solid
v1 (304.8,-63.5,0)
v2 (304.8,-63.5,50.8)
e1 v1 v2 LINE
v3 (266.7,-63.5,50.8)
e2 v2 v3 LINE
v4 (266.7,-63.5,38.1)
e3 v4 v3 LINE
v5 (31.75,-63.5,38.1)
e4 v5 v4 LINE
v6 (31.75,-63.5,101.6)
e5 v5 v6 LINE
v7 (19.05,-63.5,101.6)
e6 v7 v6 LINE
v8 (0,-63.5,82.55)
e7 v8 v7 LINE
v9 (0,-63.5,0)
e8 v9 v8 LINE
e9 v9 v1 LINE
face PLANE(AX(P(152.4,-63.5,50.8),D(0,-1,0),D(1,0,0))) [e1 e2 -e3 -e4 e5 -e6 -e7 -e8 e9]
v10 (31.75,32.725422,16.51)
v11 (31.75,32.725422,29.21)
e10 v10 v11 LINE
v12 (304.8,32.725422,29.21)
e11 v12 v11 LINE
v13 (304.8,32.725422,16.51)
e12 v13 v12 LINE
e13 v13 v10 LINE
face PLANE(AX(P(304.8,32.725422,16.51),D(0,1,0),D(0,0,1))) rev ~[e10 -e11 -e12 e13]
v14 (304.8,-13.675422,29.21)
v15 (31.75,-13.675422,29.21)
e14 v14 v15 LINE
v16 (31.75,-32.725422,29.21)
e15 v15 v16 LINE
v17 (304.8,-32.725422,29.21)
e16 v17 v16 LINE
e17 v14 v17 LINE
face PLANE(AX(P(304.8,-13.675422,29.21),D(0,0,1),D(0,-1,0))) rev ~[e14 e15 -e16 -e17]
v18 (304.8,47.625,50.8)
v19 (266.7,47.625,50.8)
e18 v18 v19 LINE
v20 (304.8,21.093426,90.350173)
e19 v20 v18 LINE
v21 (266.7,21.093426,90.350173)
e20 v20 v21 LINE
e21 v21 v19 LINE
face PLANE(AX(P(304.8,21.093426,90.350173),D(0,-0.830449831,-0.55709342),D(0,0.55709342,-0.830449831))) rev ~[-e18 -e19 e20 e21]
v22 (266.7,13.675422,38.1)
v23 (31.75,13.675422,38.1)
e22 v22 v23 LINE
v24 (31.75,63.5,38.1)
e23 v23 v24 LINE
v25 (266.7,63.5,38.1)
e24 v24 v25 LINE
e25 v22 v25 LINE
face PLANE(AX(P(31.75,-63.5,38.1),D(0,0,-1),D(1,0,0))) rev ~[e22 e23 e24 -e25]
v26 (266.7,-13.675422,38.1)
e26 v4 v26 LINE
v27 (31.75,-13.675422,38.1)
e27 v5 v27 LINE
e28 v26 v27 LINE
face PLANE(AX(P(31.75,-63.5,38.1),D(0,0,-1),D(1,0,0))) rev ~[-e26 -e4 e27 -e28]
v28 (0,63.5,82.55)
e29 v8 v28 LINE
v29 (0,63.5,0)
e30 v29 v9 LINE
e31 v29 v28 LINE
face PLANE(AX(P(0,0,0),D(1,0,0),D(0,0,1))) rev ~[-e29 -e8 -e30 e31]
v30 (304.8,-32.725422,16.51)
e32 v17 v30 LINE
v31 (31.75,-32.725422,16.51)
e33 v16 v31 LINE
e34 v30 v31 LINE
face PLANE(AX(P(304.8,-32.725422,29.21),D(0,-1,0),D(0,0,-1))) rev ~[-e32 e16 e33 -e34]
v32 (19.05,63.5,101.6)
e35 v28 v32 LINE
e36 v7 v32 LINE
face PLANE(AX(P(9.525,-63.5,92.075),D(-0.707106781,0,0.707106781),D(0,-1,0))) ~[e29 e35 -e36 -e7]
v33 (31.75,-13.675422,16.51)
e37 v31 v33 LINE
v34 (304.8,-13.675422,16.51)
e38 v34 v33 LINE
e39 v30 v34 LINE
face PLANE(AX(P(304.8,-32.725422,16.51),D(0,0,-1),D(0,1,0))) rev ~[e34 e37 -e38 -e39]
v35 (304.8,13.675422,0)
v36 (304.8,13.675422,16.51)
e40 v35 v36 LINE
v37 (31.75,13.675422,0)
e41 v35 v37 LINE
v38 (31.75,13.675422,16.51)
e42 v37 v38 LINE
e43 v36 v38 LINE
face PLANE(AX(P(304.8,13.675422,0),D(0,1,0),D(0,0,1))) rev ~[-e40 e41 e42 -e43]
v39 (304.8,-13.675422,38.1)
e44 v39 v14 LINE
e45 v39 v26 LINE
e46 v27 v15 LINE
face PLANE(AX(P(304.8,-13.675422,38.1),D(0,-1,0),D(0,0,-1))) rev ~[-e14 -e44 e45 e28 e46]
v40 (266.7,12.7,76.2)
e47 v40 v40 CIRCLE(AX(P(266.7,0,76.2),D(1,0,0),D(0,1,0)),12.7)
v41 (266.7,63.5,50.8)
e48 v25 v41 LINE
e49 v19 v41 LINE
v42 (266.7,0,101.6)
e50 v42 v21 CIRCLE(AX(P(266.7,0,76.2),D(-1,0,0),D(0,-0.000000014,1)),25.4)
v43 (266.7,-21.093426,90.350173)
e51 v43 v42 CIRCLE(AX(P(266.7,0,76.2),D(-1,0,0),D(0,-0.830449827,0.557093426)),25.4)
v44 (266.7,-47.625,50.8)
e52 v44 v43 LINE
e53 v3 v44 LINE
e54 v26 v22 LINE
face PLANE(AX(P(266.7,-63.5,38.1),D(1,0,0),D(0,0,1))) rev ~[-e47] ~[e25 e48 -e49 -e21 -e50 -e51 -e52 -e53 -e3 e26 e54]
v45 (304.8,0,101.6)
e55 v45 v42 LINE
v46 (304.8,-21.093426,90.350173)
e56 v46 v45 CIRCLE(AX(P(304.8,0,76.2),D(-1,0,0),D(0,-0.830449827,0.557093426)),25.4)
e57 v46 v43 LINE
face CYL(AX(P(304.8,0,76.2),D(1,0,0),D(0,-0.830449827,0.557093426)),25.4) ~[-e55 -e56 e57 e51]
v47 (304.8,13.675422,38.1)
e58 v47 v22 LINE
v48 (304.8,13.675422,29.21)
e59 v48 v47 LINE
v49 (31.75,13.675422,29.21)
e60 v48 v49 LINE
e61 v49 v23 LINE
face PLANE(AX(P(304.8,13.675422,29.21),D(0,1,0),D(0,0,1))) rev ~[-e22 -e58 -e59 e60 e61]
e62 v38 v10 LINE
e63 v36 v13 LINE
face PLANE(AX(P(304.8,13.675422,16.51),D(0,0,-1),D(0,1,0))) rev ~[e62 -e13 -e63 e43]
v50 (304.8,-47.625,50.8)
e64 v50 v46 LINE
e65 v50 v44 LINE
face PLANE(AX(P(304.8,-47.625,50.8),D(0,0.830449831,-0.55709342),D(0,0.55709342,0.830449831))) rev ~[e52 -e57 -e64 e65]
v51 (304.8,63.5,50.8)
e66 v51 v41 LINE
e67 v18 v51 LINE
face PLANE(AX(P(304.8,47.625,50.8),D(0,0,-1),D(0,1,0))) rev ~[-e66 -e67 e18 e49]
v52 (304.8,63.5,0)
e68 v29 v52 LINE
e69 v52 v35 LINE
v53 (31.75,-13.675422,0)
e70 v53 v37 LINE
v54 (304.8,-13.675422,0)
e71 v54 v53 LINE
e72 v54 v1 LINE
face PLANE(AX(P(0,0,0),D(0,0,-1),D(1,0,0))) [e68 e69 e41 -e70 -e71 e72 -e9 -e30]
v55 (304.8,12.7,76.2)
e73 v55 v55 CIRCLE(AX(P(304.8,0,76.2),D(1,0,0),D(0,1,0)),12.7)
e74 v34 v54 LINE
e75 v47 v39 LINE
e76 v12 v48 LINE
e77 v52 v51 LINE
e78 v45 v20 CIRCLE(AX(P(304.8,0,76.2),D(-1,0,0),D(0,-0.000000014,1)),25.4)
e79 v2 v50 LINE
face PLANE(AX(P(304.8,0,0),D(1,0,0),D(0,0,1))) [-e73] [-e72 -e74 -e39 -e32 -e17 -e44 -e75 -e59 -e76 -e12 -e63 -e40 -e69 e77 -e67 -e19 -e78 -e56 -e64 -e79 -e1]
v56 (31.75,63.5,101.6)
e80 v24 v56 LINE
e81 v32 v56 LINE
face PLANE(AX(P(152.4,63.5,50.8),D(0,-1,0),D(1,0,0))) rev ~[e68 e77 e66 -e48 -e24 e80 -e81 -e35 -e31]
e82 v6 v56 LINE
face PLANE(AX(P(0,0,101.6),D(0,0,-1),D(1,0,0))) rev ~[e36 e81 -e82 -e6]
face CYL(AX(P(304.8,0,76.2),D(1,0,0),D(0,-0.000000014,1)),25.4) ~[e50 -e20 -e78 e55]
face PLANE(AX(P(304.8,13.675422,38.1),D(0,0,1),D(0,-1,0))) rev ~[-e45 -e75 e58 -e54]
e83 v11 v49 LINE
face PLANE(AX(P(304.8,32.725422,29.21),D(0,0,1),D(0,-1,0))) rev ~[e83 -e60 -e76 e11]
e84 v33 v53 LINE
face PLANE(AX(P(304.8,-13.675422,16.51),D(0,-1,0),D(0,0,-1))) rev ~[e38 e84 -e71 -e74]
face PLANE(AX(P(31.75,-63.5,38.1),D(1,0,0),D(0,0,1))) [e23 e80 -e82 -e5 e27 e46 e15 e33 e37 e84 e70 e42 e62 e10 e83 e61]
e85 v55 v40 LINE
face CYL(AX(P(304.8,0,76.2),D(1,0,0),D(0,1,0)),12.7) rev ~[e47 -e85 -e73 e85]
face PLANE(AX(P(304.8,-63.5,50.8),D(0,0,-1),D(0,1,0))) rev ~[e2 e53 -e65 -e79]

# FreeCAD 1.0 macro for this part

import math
import FreeCAD as App
import Part
import Sketcher
Q = App.Units.Quantity


def edges_at(feature, points):
    """Names of the edges that pass closest to the given points."""
    edges = feature.Shape.Edges
    near = lambda p: min(range(len(edges)), key=lambda i: edges[i].distToShape(Part.Vertex(*p))[0])
    return sorted({f"Edge{near(p) + 1}" for p in points})


def add_polygon(sketch, points):
    """Adds a closed chain of lines whose ends are joined by coincident constraints."""
    first, n = sketch.GeometryCount, len(points)
    for a, b in zip(points, points[1:] + points[:1]):
        sketch.addGeometry(Part.LineSegment(App.Vector(*a, 0), App.Vector(*b, 0)), False)
    for i in range(n):
        sketch.addConstraint(Sketcher.Constraint("Coincident", first + i, 2, first + (i + 1) % n, 1))

doc = App.newDocument("Part")
body = doc.addObject("PartDesign::Body", "Body")

sketch1 = body.newObject("Sketcher::SketchObject", "Sketch")
sketch1.AttachmentSupport = (doc.getObject("XZ_Plane"), [""])
sketch1.MapMode = "FlatFace"
add_polygon(sketch1, [(0, 102), (0, 0), (305, 0), (305, 102)])
sketch1.addConstraint([
    Sketcher.Constraint("Vertical", 0),
    Sketcher.Constraint("Horizontal", 1),
    Sketcher.Constraint("Vertical", 2),
    Sketcher.Constraint("Horizontal", 3),
    Sketcher.Constraint("Coincident", 0, 2, -1, 1),
    Sketcher.Constraint("DistanceX", 1, 1, 1, 2, Q("12 in")),
    Sketcher.Constraint("DistanceY", 0, 2, 0, 1, Q("4 in")),
])
pad1 = body.newObject("PartDesign::Pad", "Pad")
pad1.Profile = sketch1
pad1.Length = Q("5 in")
pad1.Midplane = True

sketch2 = body.newObject("Sketcher::SketchObject", "Sketch001")
sketch2.AttachmentSupport = (doc.getObject("XZ_Plane"), [""])
sketch2.MapMode = "FlatFace"
sketch2.AttachmentOffset = App.Placement(App.Vector(0, 0, 2.5 * 25.4), App.Rotation())
add_polygon(sketch2, [(32, 102), (32, 38), (267, 38), (267, 102)])
sketch2.addConstraint([
    Sketcher.Constraint("Vertical", 0),
    Sketcher.Constraint("Horizontal", 1),
    Sketcher.Constraint("Vertical", 2),
    Sketcher.Constraint("Horizontal", 3),
    Sketcher.Constraint("DistanceY", 0, 2, 0, 1, Q("2.5 in")),
    Sketcher.Constraint("DistanceY", -1, 1, 2, 2, Q("4 in")),
    Sketcher.Constraint("DistanceX", 1, 1, 1, 2, Q("9.25 in")),
    Sketcher.Constraint("DistanceX", -1, 1, 1, 2, Q("10.5 in")),
])
pocket1 = body.newObject("PartDesign::Pocket", "Pocket")
pocket1.Profile = sketch2
pocket1.Type = "ThroughAll"
doc.recompute()

chamfer = body.newObject("PartDesign::Chamfer", "Chamfer")
chamfer.Base = (pocket1, edges_at(pocket1, [(0, 0, 101.6)]))
chamfer.ChamferType = "Two distances"
chamfer.Size = Q("0.75 in")
chamfer.Size2 = Q("0.75 in")

sketch3 = body.newObject("Sketcher::SketchObject", "Sketch002")
sketch3.AttachmentSupport = (doc.getObject("YZ_Plane"), [""])
sketch3.MapMode = "FlatFace"
sketch3.AttachmentOffset = App.Placement(App.Vector(0, 0, 12 * 25.4), App.Rotation())
sketch3.addGeometry([
    Part.LineSegment(App.Vector(-64, 102, 0), App.Vector(-64, 51, 0)),
    Part.LineSegment(App.Vector(-64, 51, 0), App.Vector(-48, 51, 0)),
    Part.LineSegment(App.Vector(-48, 51, 0), App.Vector(-21, 90, 0)),
    Part.ArcOfCircle(Part.Circle(App.Vector(0, 76, 0), App.Vector(0, 0, 1), 25), math.radians(90), math.radians(146)),
    Part.LineSegment(App.Vector(0, 102, 0), App.Vector(-64, 102, 0)),
    Part.LineSegment(App.Vector(64, 102, 0), App.Vector(0, 102, 0)),
    Part.ArcOfCircle(Part.Circle(App.Vector(0, 76, 0), App.Vector(0, 0, 1), 25), math.radians(34), math.radians(90)),
    Part.LineSegment(App.Vector(21, 90, 0), App.Vector(48, 51, 0)),
    Part.LineSegment(App.Vector(48, 51, 0), App.Vector(64, 51, 0)),
    Part.LineSegment(App.Vector(64, 51, 0), App.Vector(64, 102, 0)),
    Part.Circle(App.Vector(0, 76, 0), App.Vector(0, 0, 1), 13),
], False)
sketch3.addConstraint([
    Sketcher.Constraint("Coincident", 0, 2, 1, 1),
    Sketcher.Constraint("Coincident", 1, 2, 2, 1),
    Sketcher.Constraint("Tangent", 2, 2, 3, 2),
    Sketcher.Constraint("Tangent", 3, 1, 4, 1),
    Sketcher.Constraint("Coincident", 4, 2, 0, 1),
    Sketcher.Constraint("Tangent", 5, 2, 6, 2),
    Sketcher.Constraint("Tangent", 6, 1, 7, 1),
    Sketcher.Constraint("Coincident", 7, 2, 8, 1),
    Sketcher.Constraint("Coincident", 8, 2, 9, 1),
    Sketcher.Constraint("Coincident", 9, 2, 5, 1),
    Sketcher.Constraint("Vertical", 0),
    Sketcher.Constraint("Horizontal", 1),
    Sketcher.Constraint("Horizontal", 4),
    Sketcher.Constraint("Horizontal", 5),
    Sketcher.Constraint("Horizontal", 8),
    Sketcher.Constraint("Vertical", 9),
    Sketcher.Constraint("Coincident", 6, 3, 3, 3),
    Sketcher.Constraint("Coincident", 10, 3, 3, 3),
    Sketcher.Constraint("Equal", 3, 6),
    Sketcher.Constraint("Symmetric", 2, 2, 6, 1, -2),
    Sketcher.Constraint("Symmetric", 0, 2, 8, 2, -2),
    Sketcher.Constraint("Diameter", 10, Q("1 in")),
    Sketcher.Constraint("Radius", 3, Q("1 in")),
    Sketcher.Constraint("DistanceY", 0, 2, 0, 1, Q("2 in")),
    Sketcher.Constraint("DistanceX", 4, 2, 4, 1, Q("2.5 in")),
    Sketcher.Constraint("DistanceY", -1, 1, 3, 3, Q("3 in")),
    Sketcher.Constraint("DistanceX", 1, 1, 1, 2, Q("0.625 in")),
])
pocket2 = body.newObject("PartDesign::Pocket", "Pocket001")
pocket2.Profile = sketch3
pocket2.Length = Q("1.5 in")

sketch4 = body.newObject("Sketcher::SketchObject", "Sketch003")
sketch4.AttachmentSupport = (doc.getObject("YZ_Plane"), [""])
sketch4.MapMode = "FlatFace"
sketch4.AttachmentOffset = App.Placement(App.Vector(0, 0, 12 * 25.4), App.Rotation())
add_polygon(sketch4, [(-14, 0), (14, 0), (14, 17), (33, 17), (33, 29), (14, 29), (14, 38), (-14, 38), (-14, 29), (-33, 29), (-33, 17), (-14, 17)])
sketch4.addConstraint([
    Sketcher.Constraint("Horizontal", 0),
    Sketcher.Constraint("Vertical", 1),
    Sketcher.Constraint("Horizontal", 2),
    Sketcher.Constraint("Vertical", 3),
    Sketcher.Constraint("Horizontal", 4),
    Sketcher.Constraint("Vertical", 5),
    Sketcher.Constraint("Horizontal", 6),
    Sketcher.Constraint("Vertical", 7),
    Sketcher.Constraint("Horizontal", 8),
    Sketcher.Constraint("Vertical", 9),
    Sketcher.Constraint("Horizontal", 10),
    Sketcher.Constraint("Vertical", 11),
    Sketcher.Constraint("Symmetric", 0, 2, 11, 2, -1, 1),
    Sketcher.Constraint("Symmetric", 4, 2, 7, 2, -2),
    Sketcher.Constraint("Symmetric", 2, 2, 9, 2, -2),
    Sketcher.Constraint("Vertical", 1, 2, 4, 2),
    Sketcher.Constraint("DistanceY", 3, 1, 3, 2, Q("0.5 in")),
    Sketcher.Constraint("DistanceX", 2, 1, 2, 2, Q("0.75 in")),
    Sketcher.Constraint("DistanceY", 1, 1, 1, 2, Q("0.65 in")),
    Sketcher.Constraint("DistanceY", 5, 1, 5, 2, Q("0.35 in")),
    Sketcher.Constraint("DistanceX", 0, 1, 0, 2, 27.350844),
])
pocket3 = body.newObject("PartDesign::Pocket", "Pocket002")
pocket3.Profile = sketch4
pocket3.Length = Q("10.75 in")

doc.recompute()
